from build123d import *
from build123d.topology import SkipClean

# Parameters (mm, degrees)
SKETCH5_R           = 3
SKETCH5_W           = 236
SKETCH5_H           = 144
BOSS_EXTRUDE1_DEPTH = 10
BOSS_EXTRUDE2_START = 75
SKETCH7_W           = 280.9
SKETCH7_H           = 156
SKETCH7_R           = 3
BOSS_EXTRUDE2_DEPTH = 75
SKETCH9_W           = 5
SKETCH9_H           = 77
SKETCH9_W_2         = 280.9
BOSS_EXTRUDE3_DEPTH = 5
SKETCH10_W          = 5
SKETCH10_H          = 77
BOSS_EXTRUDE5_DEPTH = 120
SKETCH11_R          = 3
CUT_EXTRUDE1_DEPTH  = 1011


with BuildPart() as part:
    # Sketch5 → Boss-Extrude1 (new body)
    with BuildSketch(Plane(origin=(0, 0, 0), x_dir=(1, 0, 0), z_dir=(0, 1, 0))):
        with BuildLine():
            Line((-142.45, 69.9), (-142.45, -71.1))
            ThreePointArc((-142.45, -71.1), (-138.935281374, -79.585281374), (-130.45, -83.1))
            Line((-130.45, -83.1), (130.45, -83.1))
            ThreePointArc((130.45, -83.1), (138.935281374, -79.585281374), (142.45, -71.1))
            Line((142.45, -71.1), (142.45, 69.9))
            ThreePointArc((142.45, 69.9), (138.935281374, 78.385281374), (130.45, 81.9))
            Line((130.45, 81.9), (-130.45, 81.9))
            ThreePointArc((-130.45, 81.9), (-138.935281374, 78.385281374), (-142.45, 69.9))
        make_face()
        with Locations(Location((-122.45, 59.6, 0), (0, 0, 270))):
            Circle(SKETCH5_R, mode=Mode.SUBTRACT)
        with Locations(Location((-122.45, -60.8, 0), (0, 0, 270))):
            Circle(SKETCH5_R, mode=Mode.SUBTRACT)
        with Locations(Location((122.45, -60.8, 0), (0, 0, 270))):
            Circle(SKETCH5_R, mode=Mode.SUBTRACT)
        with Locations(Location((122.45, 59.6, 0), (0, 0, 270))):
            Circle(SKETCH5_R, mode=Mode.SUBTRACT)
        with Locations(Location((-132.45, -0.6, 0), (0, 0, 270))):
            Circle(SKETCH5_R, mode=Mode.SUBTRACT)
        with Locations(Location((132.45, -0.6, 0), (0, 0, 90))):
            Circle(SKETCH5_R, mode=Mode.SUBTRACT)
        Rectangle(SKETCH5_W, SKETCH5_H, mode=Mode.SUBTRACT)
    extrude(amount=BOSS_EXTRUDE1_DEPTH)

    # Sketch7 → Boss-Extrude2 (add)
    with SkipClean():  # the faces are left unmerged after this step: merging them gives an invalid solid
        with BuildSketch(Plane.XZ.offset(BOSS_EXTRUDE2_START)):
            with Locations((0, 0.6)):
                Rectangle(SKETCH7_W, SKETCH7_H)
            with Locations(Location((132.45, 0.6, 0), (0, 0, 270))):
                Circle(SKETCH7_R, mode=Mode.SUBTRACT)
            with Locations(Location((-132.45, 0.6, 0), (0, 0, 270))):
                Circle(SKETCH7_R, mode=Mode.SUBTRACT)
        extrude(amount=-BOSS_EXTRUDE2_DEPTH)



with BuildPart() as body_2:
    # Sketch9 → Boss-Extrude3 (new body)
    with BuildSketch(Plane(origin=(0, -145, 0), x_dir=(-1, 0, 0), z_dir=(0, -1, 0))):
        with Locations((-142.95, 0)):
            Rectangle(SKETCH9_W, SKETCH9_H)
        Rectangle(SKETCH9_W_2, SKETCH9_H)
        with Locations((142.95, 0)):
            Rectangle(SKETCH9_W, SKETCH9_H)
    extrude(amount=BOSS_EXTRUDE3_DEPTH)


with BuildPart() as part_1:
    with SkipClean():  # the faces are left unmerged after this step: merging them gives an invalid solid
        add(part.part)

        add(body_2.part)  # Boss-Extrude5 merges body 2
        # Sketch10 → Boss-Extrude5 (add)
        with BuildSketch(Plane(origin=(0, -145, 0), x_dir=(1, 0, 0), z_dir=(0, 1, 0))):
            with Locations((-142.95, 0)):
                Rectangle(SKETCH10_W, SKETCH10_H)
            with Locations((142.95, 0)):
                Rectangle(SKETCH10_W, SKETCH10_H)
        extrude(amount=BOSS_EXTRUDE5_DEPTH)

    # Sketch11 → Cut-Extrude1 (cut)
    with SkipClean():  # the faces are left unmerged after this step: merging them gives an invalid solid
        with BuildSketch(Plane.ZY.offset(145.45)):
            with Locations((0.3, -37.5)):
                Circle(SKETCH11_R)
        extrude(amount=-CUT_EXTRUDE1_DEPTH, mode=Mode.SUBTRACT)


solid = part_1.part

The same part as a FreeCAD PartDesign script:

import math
import FreeCAD as App
import Part
import Sketcher

V = App.Vector

doc = App.newDocument("Part")
body = doc.addObject("PartDesign::Body", "Body")

sketch1 = doc.addObject("Sketcher::SketchObject", "Sketch")
body.addObject(sketch1)
sketch1.AttachmentSupport = (doc.XZ_Plane, [""])
sketch1.MapMode = "FlatFace"
sketch1.addGeometry(Part.LineSegment(V(-142.4, -69.9, 0), V(-142.4, 71.1, 0)), False)
sketch1.addGeometry(Part.ArcOfCircle(Part.Circle(V(-130.4, 71.1, 0), V(0, 0, 1), 12), math.radians(90), math.radians(180)), False)
sketch1.addGeometry(Part.LineSegment(V(-130.4, 83.1, 0), V(130.4, 83.1, 0)), False)
sketch1.addGeometry(Part.ArcOfCircle(Part.Circle(V(130.4, 71.1, 0), V(0, 0, 1), 12), math.radians(0), math.radians(90)), False)
sketch1.addGeometry(Part.LineSegment(V(142.4, 71.1, 0), V(142.4, -69.9, 0)), False)
sketch1.addGeometry(Part.ArcOfCircle(Part.Circle(V(130.4, -69.9, 0), V(0, 0, 1), 12), math.radians(-90), math.radians(0)), False)
sketch1.addGeometry(Part.LineSegment(V(130.4, -81.9, 0), V(-130.4, -81.9, 0)), False)
sketch1.addGeometry(Part.ArcOfCircle(Part.Circle(V(-130.4, -69.9, 0), V(0, 0, 1), 12), math.radians(-180), math.radians(-90)), False)
sketch1.addGeometry(Part.Circle(V(-122.5, 60.8, 0), V(0, 0, 1), 3), False)
sketch1.addGeometry(Part.Circle(V(-132.4, 0.6, 0), V(0, 0, 1), 3), False)
sketch1.addGeometry(Part.Circle(V(122.5, 60.8, 0), V(0, 0, 1), 3), False)
sketch1.addGeometry(Part.Circle(V(132.4, 0.6, 0), V(0, 0, 1), 3), False)
sketch1.addGeometry(Part.Circle(V(-122.5, -59.6, 0), V(0, 0, 1), 3), False)
sketch1.addGeometry(Part.LineSegment(V(118, 72, 0), V(-118, 72, 0)), False)
sketch1.addGeometry(Part.LineSegment(V(-118, 72, 0), V(-118, -72, 0)), False)
sketch1.addGeometry(Part.LineSegment(V(-118, -72, 0), V(118, -72, 0)), False)
sketch1.addGeometry(Part.LineSegment(V(118, -72, 0), V(118, 72, 0)), False)
sketch1.addGeometry(Part.Circle(V(122.5, -59.6, 0), V(0, 0, 1), 3), False)
sketch1.addConstraint(Sketcher.Constraint("Tangent", 0, 2, 1, 2))
sketch1.addConstraint(Sketcher.Constraint("Tangent", 1, 1, 2, 1))
sketch1.addConstraint(Sketcher.Constraint("Tangent", 2, 2, 3, 2))
sketch1.addConstraint(Sketcher.Constraint("Tangent", 3, 1, 4, 1))
sketch1.addConstraint(Sketcher.Constraint("Tangent", 4, 2, 5, 2))
sketch1.addConstraint(Sketcher.Constraint("Tangent", 5, 1, 6, 1))
sketch1.addConstraint(Sketcher.Constraint("Tangent", 6, 2, 7, 2))
sketch1.addConstraint(Sketcher.Constraint("Tangent", 7, 1, 0, 1))
sketch1.addConstraint(Sketcher.Constraint("Coincident", 13, 2, 14, 1))
sketch1.addConstraint(Sketcher.Constraint("Coincident", 14, 2, 15, 1))
sketch1.addConstraint(Sketcher.Constraint("Coincident", 15, 2, 16, 1))
sketch1.addConstraint(Sketcher.Constraint("Coincident", 16, 2, 13, 1))
sketch1.addConstraint(Sketcher.Constraint("Vertical", 0))
sketch1.addConstraint(Sketcher.Constraint("Horizontal", 2))
sketch1.addConstraint(Sketcher.Constraint("Vertical", 4))
sketch1.addConstraint(Sketcher.Constraint("Horizontal", 6))
sketch1.addConstraint(Sketcher.Constraint("Horizontal", 13))
sketch1.addConstraint(Sketcher.Constraint("Vertical", 14))
sketch1.addConstraint(Sketcher.Constraint("Horizontal", 15))
sketch1.addConstraint(Sketcher.Constraint("Vertical", 16))
sketch1.addConstraint(Sketcher.Constraint("Equal", 1, 3))
sketch1.addConstraint(Sketcher.Constraint("Equal", 3, 5))
sketch1.addConstraint(Sketcher.Constraint("Equal", 5, 7))
sketch1.addConstraint(Sketcher.Constraint("Equal", 8, 9))
sketch1.addConstraint(Sketcher.Constraint("Equal", 9, 10))
sketch1.addConstraint(Sketcher.Constraint("Equal", 10, 11))
sketch1.addConstraint(Sketcher.Constraint("Equal", 11, 12))
sketch1.addConstraint(Sketcher.Constraint("Equal", 12, 17))
sketch1.addConstraint(Sketcher.Constraint("Symmetric", 13, 2, 15, 2, -1, 1))
sketch1.addConstraint(Sketcher.Constraint("Symmetric", 8, 3, 10, 3, -2))
sketch1.addConstraint(Sketcher.Constraint("Symmetric", 9, 3, 11, 3, -2))
sketch1.addConstraint(Sketcher.Constraint("Symmetric", 12, 3, 17, 3, -2))
sketch1.addConstraint(Sketcher.Constraint("Vertical", 8, 3, 12, 3))
sketch1.addConstraint(Sketcher.Constraint("Diameter", 8, 6.0))
sketch1.addConstraint(Sketcher.Constraint("Radius", 1, 12.0))
sketch1.addConstraint(Sketcher.Constraint("DistanceX", 13, 2, 13, 1, 236.0))
sketch1.addConstraint(Sketcher.Constraint("DistanceY", 0, 1, 0, 2, 141.0))
sketch1.addConstraint(Sketcher.Constraint("DistanceY", 14, 2, 14, 1, 144.0))
sketch1.addConstraint(Sketcher.Constraint("DistanceX", 2, 1, 2, 2, 260.9))
sketch1.addConstraint(Sketcher.Constraint("DistanceX", 1, 3, 8, 3, 8.0))
sketch1.addConstraint(Sketcher.Constraint("DistanceX", 9, 3, 8, 3, 10.0))
sketch1.addConstraint(Sketcher.Constraint("DistanceX", 10, 3, 3, 3, 8.0))
sketch1.addConstraint(Sketcher.Constraint("DistanceY", -1, 1, 1, 3, 71.1))
sketch1.addConstraint(Sketcher.Constraint("DistanceY", -1, 1, 8, 3, 60.8))
sketch1.addConstraint(Sketcher.Constraint("DistanceY", -1, 1, 9, 3, 0.6))
sketch1.addConstraint(Sketcher.Constraint("DistanceY", 12, 3, -1, 1, 59.6))
pad1 = doc.addObject("PartDesign::Pad", "Pad")
body.addObject(pad1)
pad1.Profile = sketch1
pad1.Length = 10
pad1.Reversed = True

sketch2 = doc.addObject("Sketcher::SketchObject", "Sketch001")
body.addObject(sketch2)
sketch2.AttachmentSupport = (doc.XZ_Plane, [""])
sketch2.MapMode = "FlatFace"
sketch2.AttachmentOffset = App.Placement(V(0, 0, 75), App.Rotation())
sketch2.addGeometry(Part.LineSegment(V(-140.4, 78.6, 0), V(-140.4, -77.4, 0)), False)
sketch2.addGeometry(Part.LineSegment(V(-140.4, -77.4, 0), V(140.4, -77.4, 0)), False)
sketch2.addGeometry(Part.LineSegment(V(140.4, -77.4, 0), V(140.4, 78.6, 0)), False)
sketch2.addGeometry(Part.LineSegment(V(140.4, 78.6, 0), V(-140.4, 78.6, 0)), False)
sketch2.addGeometry(Part.Circle(V(-132.4, 0.6, 0), V(0, 0, 1), 3), False)
sketch2.addGeometry(Part.Circle(V(132.4, 0.6, 0), V(0, 0, 1), 3), False)
sketch2.addConstraint(Sketcher.Constraint("Coincident", 0, 2, 1, 1))
sketch2.addConstraint(Sketcher.Constraint("Coincident", 1, 2, 2, 1))
sketch2.addConstraint(Sketcher.Constraint("Coincident", 2, 2, 3, 1))
sketch2.addConstraint(Sketcher.Constraint("Coincident", 3, 2, 0, 1))
sketch2.addConstraint(Sketcher.Constraint("Vertical", 0))
sketch2.addConstraint(Sketcher.Constraint("Horizontal", 1))
sketch2.addConstraint(Sketcher.Constraint("Vertical", 2))
sketch2.addConstraint(Sketcher.Constraint("Horizontal", 3))
sketch2.addConstraint(Sketcher.Constraint("Equal", 4, 5))
sketch2.addConstraint(Sketcher.Constraint("Symmetric", 4, 3, 5, 3, -2))
sketch2.addConstraint(Sketcher.Constraint("Diameter", 4, 6.0))
sketch2.addConstraint(Sketcher.Constraint("DistanceY", 0, 2, 0, 1, 156.0))
sketch2.addConstraint(Sketcher.Constraint("DistanceX", 1, 1, 1, 2, 280.9))
sketch2.addConstraint(Sketcher.Constraint("DistanceX", 0, 2, 4, 3, 8.0))
sketch2.addConstraint(Sketcher.Constraint("DistanceY", 0, 2, 4, 3, 78.0))
sketch2.addConstraint(Sketcher.Constraint("DistanceX", 5, 3, 1, 2, 8.0))
sketch2.addConstraint(Sketcher.Constraint("DistanceY", -1, 1, 4, 3, 0.6))
pad2 = doc.addObject("PartDesign::Pad", "Pad001")
body.addObject(pad2)
pad2.Profile = sketch2
pad2.Length = 75
pad2.Reversed = True
body2 = doc.addObject("PartDesign::Body", "Body001")

sketch3 = doc.addObject("Sketcher::SketchObject", "Sketch002")
body2.addObject(sketch3)
sketch3.AttachmentSupport = (doc.getObject("XZ_Plane001"), [""])
sketch3.MapMode = "FlatFace"
sketch3.AttachmentOffset = App.Placement(V(0, 0, 145), App.Rotation())
sketch3.addGeometry(Part.LineSegment(V(145, -38, 0), V(145, 38, 0)), False)
sketch3.addGeometry(Part.LineSegment(V(145, 38, 0), V(-145, 38, 0)), False)
sketch3.addGeometry(Part.LineSegment(V(-145, 38, 0), V(-145, -38, 0)), False)
sketch3.addGeometry(Part.LineSegment(V(-145, -38, 0), V(145, -38, 0)), False)
sketch3.addConstraint(Sketcher.Constraint("Coincident", 0, 2, 1, 1))
sketch3.addConstraint(Sketcher.Constraint("Coincident", 1, 2, 2, 1))
sketch3.addConstraint(Sketcher.Constraint("Coincident", 2, 2, 3, 1))
sketch3.addConstraint(Sketcher.Constraint("Coincident", 3, 2, 0, 1))
sketch3.addConstraint(Sketcher.Constraint("Vertical", 0))
sketch3.addConstraint(Sketcher.Constraint("Horizontal", 1))
sketch3.addConstraint(Sketcher.Constraint("Vertical", 2))
sketch3.addConstraint(Sketcher.Constraint("Horizontal", 3))
sketch3.addConstraint(Sketcher.Constraint("Symmetric", 0, 2, 2, 2, -1, 1))
sketch3.addConstraint(Sketcher.Constraint("DistanceY", 0, 1, 0, 2, 77.0))
sketch3.addConstraint(Sketcher.Constraint("DistanceX", 1, 2, 1, 1, 290.9))
pad3 = doc.addObject("PartDesign::Pad", "Pad002")
body2.addObject(pad3)
pad3.Profile = sketch3
pad3.Length = 5
body.AllowCompound = True
doc.recompute()

boolean = doc.addObject("PartDesign::Boolean", "Boolean")
body.addObject(boolean)
boolean.Type = "Fuse"
boolean.addObjects([body2])

sketch4 = doc.addObject("Sketcher::SketchObject", "Sketch003")
body.addObject(sketch4)
sketch4.AttachmentSupport = (doc.XZ_Plane, [""])
sketch4.MapMode = "FlatFace"
sketch4.AttachmentOffset = App.Placement(V(0, 0, 145), App.Rotation())
sketch4.addGeometry(Part.LineSegment(V(-145, -38, 0), V(-145, 38, 0)), False)
sketch4.addGeometry(Part.LineSegment(V(-145, 38, 0), V(-140, 38, 0)), False)
sketch4.addGeometry(Part.LineSegment(V(-140, 38, 0), V(-140, -38, 0)), False)
sketch4.addGeometry(Part.LineSegment(V(-140, -38, 0), V(-145, -38, 0)), False)
sketch4.addGeometry(Part.LineSegment(V(140, -38, 0), V(140, 38, 0)), False)
sketch4.addGeometry(Part.LineSegment(V(140, 38, 0), V(145, 38, 0)), False)
sketch4.addGeometry(Part.LineSegment(V(145, 38, 0), V(145, -38, 0)), False)
sketch4.addGeometry(Part.LineSegment(V(145, -38, 0), V(140, -38, 0)), False)
sketch4.addConstraint(Sketcher.Constraint("Coincident", 0, 2, 1, 1))
sketch4.addConstraint(Sketcher.Constraint("Coincident", 1, 2, 2, 1))
sketch4.addConstraint(Sketcher.Constraint("Coincident", 2, 2, 3, 1))
sketch4.addConstraint(Sketcher.Constraint("Coincident", 3, 2, 0, 1))
sketch4.addConstraint(Sketcher.Constraint("Coincident", 4, 2, 5, 1))
sketch4.addConstraint(Sketcher.Constraint("Coincident", 5, 2, 6, 1))
sketch4.addConstraint(Sketcher.Constraint("Coincident", 6, 2, 7, 1))
sketch4.addConstraint(Sketcher.Constraint("Coincident", 7, 2, 4, 1))
sketch4.addConstraint(Sketcher.Constraint("Vertical", 0))
sketch4.addConstraint(Sketcher.Constraint("Horizontal", 1))
sketch4.addConstraint(Sketcher.Constraint("Vertical", 2))
sketch4.addConstraint(Sketcher.Constraint("Horizontal", 3))
sketch4.addConstraint(Sketcher.Constraint("Vertical", 4))
sketch4.addConstraint(Sketcher.Constraint("Horizontal", 5))
sketch4.addConstraint(Sketcher.Constraint("Vertical", 6))
sketch4.addConstraint(Sketcher.Constraint("Horizontal", 7))
sketch4.addConstraint(Sketcher.Constraint("Symmetric", 2, 2, 4, 2, -1, 1))
sketch4.addConstraint(Sketcher.Constraint("Symmetric", 0, 2, 6, 2, -1, 1))
sketch4.addConstraint(Sketcher.Constraint("Horizontal", 1, 2, 4, 2))
sketch4.addConstraint(Sketcher.Constraint("DistanceX", 1, 1, 1, 2, 5.0))
sketch4.addConstraint(Sketcher.Constraint("DistanceY", 0, 1, 0, 2, 77.0))
sketch4.addConstraint(Sketcher.Constraint("DistanceX", 1, 2, 4, 2, 280.9))
pad4 = doc.addObject("PartDesign::Pad", "Pad003")
body.addObject(pad4)
pad4.Profile = sketch4
pad4.Length = 120
pad4.Reversed = True

sketch5 = doc.addObject("Sketcher::SketchObject", "Sketch004")
body.addObject(sketch5)
sketch5.AttachmentSupport = (doc.YZ_Plane, [""])
sketch5.MapMode = "FlatFace"
sketch5.AttachmentOffset = App.Placement(V(0, 0, -145.45), App.Rotation())
sketch5.addGeometry(Part.Circle(V(-37.5, 0.3, 0), V(0, 0, 1), 3), False)
sketch5.addConstraint(Sketcher.Constraint("Diameter", 0, 6.0))
sketch5.addConstraint(Sketcher.Constraint("DistanceX", 0, 3, -1, 1, 37.5))
sketch5.addConstraint(Sketcher.Constraint("DistanceY", -1, 1, 0, 3, 0.3))
pocket1 = doc.addObject("PartDesign::Pocket", "Pocket")
body.addObject(pocket1)
pocket1.Profile = sketch5
pocket1.Length = 1011
pocket1.Reversed = True

doc.recompute()
